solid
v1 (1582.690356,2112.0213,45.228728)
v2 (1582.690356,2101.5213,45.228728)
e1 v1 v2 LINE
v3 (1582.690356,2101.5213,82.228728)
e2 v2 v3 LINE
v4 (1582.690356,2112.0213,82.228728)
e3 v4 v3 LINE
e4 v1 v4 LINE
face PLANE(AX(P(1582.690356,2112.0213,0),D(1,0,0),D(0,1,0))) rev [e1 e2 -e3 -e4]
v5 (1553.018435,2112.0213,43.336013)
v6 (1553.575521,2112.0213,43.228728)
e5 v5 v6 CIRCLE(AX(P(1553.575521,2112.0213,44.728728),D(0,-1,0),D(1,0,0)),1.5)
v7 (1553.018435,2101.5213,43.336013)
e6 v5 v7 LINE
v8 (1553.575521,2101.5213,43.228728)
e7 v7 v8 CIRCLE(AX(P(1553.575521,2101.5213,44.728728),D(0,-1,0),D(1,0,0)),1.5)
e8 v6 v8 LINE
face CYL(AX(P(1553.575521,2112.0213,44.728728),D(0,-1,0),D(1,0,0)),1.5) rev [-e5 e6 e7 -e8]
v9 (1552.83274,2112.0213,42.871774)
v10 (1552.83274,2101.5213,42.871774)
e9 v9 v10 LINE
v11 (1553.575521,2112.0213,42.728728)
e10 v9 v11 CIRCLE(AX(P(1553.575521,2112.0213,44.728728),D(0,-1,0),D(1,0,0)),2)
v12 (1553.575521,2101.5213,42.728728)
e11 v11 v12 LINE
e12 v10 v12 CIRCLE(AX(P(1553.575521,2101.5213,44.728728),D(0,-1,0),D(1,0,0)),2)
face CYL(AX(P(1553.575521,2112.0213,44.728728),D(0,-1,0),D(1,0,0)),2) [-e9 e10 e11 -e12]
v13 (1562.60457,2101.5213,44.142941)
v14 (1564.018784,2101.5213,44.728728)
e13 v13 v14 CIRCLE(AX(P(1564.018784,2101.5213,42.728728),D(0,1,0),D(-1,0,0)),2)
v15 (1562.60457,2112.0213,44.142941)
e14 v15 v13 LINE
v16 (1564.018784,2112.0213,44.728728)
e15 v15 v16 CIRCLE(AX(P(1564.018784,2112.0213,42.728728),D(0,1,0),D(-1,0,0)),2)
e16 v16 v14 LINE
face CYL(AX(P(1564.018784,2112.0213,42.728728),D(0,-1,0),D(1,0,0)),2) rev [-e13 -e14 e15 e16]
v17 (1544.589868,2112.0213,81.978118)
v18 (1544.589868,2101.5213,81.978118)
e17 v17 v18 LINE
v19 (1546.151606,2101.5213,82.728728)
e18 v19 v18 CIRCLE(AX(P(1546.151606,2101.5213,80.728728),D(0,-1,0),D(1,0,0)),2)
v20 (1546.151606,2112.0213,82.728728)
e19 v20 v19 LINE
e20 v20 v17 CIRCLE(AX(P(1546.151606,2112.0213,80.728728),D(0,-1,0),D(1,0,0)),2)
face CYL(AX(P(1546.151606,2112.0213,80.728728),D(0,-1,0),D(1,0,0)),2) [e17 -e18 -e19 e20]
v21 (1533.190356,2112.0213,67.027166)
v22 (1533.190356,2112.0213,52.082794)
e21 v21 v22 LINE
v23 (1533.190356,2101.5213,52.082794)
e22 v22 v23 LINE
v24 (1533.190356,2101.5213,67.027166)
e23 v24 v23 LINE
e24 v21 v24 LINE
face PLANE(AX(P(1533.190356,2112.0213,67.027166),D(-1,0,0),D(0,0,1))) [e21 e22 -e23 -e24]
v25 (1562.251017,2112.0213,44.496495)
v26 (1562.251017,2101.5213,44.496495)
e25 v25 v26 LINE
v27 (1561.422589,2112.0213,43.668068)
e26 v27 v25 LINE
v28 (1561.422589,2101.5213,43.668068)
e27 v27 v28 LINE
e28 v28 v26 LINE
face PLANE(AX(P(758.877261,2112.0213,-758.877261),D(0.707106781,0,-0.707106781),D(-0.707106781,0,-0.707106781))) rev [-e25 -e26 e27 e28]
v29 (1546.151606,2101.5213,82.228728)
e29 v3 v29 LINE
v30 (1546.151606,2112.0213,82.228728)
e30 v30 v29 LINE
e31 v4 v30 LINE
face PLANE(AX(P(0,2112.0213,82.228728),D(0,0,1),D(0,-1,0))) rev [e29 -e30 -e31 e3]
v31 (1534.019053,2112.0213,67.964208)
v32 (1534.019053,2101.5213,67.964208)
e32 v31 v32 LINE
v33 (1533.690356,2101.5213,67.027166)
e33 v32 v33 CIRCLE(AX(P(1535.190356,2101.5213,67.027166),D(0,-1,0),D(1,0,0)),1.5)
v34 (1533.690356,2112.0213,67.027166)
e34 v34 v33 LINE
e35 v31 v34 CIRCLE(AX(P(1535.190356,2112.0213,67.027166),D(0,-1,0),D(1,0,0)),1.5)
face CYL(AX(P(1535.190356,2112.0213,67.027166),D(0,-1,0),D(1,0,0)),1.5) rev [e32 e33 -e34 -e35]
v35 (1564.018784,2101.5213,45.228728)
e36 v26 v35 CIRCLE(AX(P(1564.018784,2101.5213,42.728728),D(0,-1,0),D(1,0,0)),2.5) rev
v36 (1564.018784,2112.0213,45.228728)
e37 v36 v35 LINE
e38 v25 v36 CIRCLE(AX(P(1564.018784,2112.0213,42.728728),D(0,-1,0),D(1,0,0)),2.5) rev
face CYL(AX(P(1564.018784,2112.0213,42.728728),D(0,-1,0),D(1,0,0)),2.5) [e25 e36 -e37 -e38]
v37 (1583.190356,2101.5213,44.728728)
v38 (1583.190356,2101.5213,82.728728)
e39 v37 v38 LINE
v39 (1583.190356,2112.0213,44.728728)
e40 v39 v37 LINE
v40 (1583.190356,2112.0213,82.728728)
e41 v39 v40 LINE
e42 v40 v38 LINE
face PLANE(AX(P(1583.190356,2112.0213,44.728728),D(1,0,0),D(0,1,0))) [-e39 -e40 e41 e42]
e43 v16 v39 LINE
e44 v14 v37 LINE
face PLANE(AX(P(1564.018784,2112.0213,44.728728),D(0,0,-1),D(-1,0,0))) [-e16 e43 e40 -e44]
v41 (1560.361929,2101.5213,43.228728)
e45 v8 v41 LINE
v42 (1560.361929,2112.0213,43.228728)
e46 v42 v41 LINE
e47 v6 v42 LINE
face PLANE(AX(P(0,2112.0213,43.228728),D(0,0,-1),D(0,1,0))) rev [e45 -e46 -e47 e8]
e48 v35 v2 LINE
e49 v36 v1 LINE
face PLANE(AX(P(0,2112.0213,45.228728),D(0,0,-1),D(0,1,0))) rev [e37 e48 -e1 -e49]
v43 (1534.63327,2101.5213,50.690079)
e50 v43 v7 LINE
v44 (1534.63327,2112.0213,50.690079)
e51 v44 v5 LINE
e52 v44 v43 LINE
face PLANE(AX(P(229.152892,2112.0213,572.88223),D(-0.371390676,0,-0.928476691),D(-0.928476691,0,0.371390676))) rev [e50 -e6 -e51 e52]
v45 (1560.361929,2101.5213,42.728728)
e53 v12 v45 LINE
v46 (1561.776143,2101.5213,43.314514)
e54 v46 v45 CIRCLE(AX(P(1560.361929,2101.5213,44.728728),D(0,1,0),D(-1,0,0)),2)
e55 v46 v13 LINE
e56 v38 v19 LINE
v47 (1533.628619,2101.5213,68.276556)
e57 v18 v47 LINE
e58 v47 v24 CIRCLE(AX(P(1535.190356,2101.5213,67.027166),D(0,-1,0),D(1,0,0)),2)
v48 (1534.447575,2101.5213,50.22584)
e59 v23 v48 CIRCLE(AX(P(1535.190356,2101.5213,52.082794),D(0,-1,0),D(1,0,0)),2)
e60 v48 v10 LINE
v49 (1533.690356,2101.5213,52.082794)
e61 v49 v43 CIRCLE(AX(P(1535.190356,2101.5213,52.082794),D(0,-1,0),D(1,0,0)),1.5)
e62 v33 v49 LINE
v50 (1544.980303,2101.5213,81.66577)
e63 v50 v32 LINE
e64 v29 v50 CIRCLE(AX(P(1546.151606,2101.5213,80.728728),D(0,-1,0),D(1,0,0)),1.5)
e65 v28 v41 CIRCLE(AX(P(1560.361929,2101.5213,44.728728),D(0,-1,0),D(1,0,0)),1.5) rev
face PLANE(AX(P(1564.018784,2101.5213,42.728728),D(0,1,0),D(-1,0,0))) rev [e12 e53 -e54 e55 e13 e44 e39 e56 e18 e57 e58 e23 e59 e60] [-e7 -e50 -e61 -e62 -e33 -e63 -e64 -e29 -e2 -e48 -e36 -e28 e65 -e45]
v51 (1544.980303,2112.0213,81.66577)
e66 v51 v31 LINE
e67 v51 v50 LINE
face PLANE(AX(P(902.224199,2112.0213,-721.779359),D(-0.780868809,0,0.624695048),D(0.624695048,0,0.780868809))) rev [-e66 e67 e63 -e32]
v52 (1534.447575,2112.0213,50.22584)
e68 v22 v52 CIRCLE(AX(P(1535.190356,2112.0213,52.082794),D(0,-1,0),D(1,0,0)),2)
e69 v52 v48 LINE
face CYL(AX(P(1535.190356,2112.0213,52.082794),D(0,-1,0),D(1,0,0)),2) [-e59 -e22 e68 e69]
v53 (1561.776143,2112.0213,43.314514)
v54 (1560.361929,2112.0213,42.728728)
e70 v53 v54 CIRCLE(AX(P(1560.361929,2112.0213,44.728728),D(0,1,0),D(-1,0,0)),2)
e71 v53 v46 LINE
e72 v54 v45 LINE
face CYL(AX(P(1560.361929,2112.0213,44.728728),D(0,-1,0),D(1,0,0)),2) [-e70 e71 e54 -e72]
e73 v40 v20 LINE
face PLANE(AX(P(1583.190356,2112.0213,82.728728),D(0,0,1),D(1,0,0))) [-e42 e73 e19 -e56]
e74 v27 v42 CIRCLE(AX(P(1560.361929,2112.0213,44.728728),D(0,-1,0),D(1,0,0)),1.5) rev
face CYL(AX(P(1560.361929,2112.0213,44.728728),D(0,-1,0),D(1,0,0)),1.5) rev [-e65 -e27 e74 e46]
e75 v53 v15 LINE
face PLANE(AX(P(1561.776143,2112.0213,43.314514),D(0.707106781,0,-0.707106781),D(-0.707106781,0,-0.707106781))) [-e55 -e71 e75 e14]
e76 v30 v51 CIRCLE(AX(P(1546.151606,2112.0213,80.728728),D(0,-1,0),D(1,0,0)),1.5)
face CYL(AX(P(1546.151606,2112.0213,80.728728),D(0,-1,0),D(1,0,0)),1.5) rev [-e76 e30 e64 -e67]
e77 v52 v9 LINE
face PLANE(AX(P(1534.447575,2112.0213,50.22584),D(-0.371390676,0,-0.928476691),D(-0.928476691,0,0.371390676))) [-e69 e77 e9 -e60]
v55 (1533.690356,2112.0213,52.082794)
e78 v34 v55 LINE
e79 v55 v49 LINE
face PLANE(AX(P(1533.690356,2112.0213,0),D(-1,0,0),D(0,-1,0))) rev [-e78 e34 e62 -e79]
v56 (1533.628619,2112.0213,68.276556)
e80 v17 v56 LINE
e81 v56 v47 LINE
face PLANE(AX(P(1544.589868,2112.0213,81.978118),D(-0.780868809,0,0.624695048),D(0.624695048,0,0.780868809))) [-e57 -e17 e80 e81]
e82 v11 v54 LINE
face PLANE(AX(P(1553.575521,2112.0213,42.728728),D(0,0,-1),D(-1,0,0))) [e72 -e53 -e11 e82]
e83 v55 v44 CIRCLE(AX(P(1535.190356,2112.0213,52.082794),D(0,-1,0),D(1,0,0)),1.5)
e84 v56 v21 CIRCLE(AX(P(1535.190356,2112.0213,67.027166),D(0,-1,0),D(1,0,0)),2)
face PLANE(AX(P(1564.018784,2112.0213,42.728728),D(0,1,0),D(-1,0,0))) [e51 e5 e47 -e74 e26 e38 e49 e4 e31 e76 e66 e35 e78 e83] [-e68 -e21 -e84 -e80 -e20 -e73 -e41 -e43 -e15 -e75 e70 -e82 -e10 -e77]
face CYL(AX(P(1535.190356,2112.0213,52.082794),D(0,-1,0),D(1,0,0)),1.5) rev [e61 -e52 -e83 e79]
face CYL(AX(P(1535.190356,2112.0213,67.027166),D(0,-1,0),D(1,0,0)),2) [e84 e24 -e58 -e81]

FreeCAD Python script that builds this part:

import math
import FreeCAD as App
import Part
import Sketcher
Q = App.Units.Quantity

doc = App.newDocument("Part")
body = doc.addObject("PartDesign::Body", "Body")

# Sketch on XZ plane
sketch1 = body.newObject("Sketcher::SketchObject", "Sketch")
sketch1.AttachmentSupport = (doc.getObject("XZ_Plane"), [""])
sketch1.MapMode = "FlatFace"
sketch1.AttachmentOffset = App.Placement(App.Vector(0, 0, -2101.5213), App.Rotation())
sketch1.addGeometry([
    Part.LineSegment(App.Vector(1583.2, 82.7, 0), App.Vector(1546.2, 82.7, 0)),  # 0
    Part.ArcOfCircle(Part.Circle(App.Vector(1546.2, 80.7, 0), App.Vector(0, 0, 1), 2), math.radians(90), math.radians(141)),  # 1
    Part.LineSegment(App.Vector(1544.6, 82, 0), App.Vector(1533.6, 68.3, 0)),  # 2
    Part.ArcOfCircle(Part.Circle(App.Vector(1535.2, 67, 0), App.Vector(0, 0, 1), 2), math.radians(141), math.radians(180)),  # 3
    Part.LineSegment(App.Vector(1533.2, 67, 0), App.Vector(1533.2, 52.1, 0)),  # 4
    Part.ArcOfCircle(Part.Circle(App.Vector(1535.2, 52.1, 0), App.Vector(0, 0, 1), 2), math.radians(180), math.radians(248)),  # 5
    Part.LineSegment(App.Vector(1534.4, 50.2, 0), App.Vector(1552.8, 42.9, 0)),  # 6
    Part.ArcOfCircle(Part.Circle(App.Vector(1553.6, 44.7, 0), App.Vector(0, 0, 1), 2), math.radians(-112), math.radians(-90)),  # 7
    Part.LineSegment(App.Vector(1553.6, 42.7, 0), App.Vector(1560.4, 42.7, 0)),  # 8
    Part.ArcOfCircle(Part.Circle(App.Vector(1560.4, 44.7, 0), App.Vector(0, 0, 1), 2), math.radians(-90), math.radians(-45)),  # 9
    Part.LineSegment(App.Vector(1561.8, 43.3, 0), App.Vector(1562.6, 44.1, 0)),  # 10
    Part.ArcOfCircle(Part.Circle(App.Vector(1564, 42.7, 0), App.Vector(0, 0, 1), 2), math.radians(90), math.radians(135)),  # 11
    Part.LineSegment(App.Vector(1564, 44.7, 0), App.Vector(1583.2, 44.7, 0)),  # 12
    Part.LineSegment(App.Vector(1583.2, 44.7, 0), App.Vector(1583.2, 82.7, 0)),  # 13
    Part.LineSegment(App.Vector(1582.7, 45.2, 0), App.Vector(1564, 45.2, 0)),  # 14
    Part.ArcOfCircle(Part.Circle(App.Vector(1564, 42.7, 0), App.Vector(0, 0, 1), 2.5), math.radians(90), math.radians(135)),  # 15
    Part.LineSegment(App.Vector(1562.3, 44.5, 0), App.Vector(1561.4, 43.7, 0)),  # 16
    Part.ArcOfCircle(Part.Circle(App.Vector(1560.4, 44.7, 0), App.Vector(0, 0, 1), 1.5), math.radians(-90), math.radians(-45)),  # 17
    Part.LineSegment(App.Vector(1560.4, 43.2, 0), App.Vector(1553.6, 43.2, 0)),  # 18
    Part.ArcOfCircle(Part.Circle(App.Vector(1553.6, 44.7, 0), App.Vector(0, 0, 1), 1.5), math.radians(-112), math.radians(-90)),  # 19
    Part.LineSegment(App.Vector(1553, 43.3, 0), App.Vector(1534.6, 50.7, 0)),  # 20
    Part.ArcOfCircle(Part.Circle(App.Vector(1535.2, 52.1, 0), App.Vector(0, 0, 1), 1.5), math.radians(180), math.radians(248)),  # 21
    Part.LineSegment(App.Vector(1533.7, 52.1, 0), App.Vector(1533.7, 67, 0)),  # 22
    Part.ArcOfCircle(Part.Circle(App.Vector(1535.2, 67, 0), App.Vector(0, 0, 1), 1.5), math.radians(141), math.radians(180)),  # 23
    Part.LineSegment(App.Vector(1534, 68, 0), App.Vector(1545, 81.7, 0)),  # 24
    Part.ArcOfCircle(Part.Circle(App.Vector(1546.2, 80.7, 0), App.Vector(0, 0, 1), 1.5), math.radians(90), math.radians(141)),  # 25
    Part.LineSegment(App.Vector(1546.2, 82.2, 0), App.Vector(1582.7, 82.2, 0)),  # 26
    Part.LineSegment(App.Vector(1582.7, 82.2, 0), App.Vector(1582.7, 45.2, 0)),  # 27
], False)
sketch1.addConstraint([
    Sketcher.Constraint("Tangent", 0, 2, 1, 1),
    Sketcher.Constraint("Tangent", 1, 2, 2, 1),
    Sketcher.Constraint("Tangent", 2, 2, 3, 1),
    Sketcher.Constraint("Tangent", 3, 2, 4, 1),
    Sketcher.Constraint("Tangent", 4, 2, 5, 1),
    Sketcher.Constraint("Tangent", 5, 2, 6, 1),
    Sketcher.Constraint("Tangent", 6, 2, 7, 1),
    Sketcher.Constraint("Tangent", 7, 2, 8, 1),
    Sketcher.Constraint("Tangent", 8, 2, 9, 1),
    Sketcher.Constraint("Tangent", 9, 2, 10, 1),
    Sketcher.Constraint("Tangent", 10, 2, 11, 2),
    Sketcher.Constraint("Tangent", 11, 1, 12, 1),
    Sketcher.Constraint("Coincident", 12, 2, 13, 1),
    Sketcher.Constraint("Coincident", 13, 2, 0, 1),
    Sketcher.Constraint("Tangent", 14, 2, 15, 1),
    Sketcher.Constraint("Tangent", 15, 2, 16, 1),
    Sketcher.Constraint("Tangent", 16, 2, 17, 2),
    Sketcher.Constraint("Tangent", 17, 1, 18, 1),
    Sketcher.Constraint("Tangent", 18, 2, 19, 2),
    Sketcher.Constraint("Tangent", 19, 1, 20, 1),
    Sketcher.Constraint("Tangent", 20, 2, 21, 2),
    Sketcher.Constraint("Tangent", 21, 1, 22, 1),
    Sketcher.Constraint("Tangent", 22, 2, 23, 2),
    Sketcher.Constraint("Tangent", 23, 1, 24, 1),
    Sketcher.Constraint("Tangent", 24, 2, 25, 2),
    Sketcher.Constraint("Tangent", 25, 1, 26, 1),
    Sketcher.Constraint("Coincident", 26, 2, 27, 1),
    Sketcher.Constraint("Coincident", 27, 2, 14, 1),
    Sketcher.Constraint("Horizontal", 0),
    Sketcher.Constraint("Vertical", 4),
    Sketcher.Constraint("Horizontal", 8),
    Sketcher.Constraint("Horizontal", 12),
    Sketcher.Constraint("Vertical", 13),
    Sketcher.Constraint("Horizontal", 14),
    Sketcher.Constraint("Horizontal", 18),
    Sketcher.Constraint("Vertical", 22),
    Sketcher.Constraint("Horizontal", 26),
    Sketcher.Constraint("Vertical", 27),
    Sketcher.Constraint("Coincident", 15, 3, 11, 3),
    Sketcher.Constraint("Coincident", 17, 3, 9, 3),
    Sketcher.Constraint("Coincident", 19, 3, 7, 3),
    Sketcher.Constraint("Coincident", 21, 3, 5, 3),
    Sketcher.Constraint("Coincident", 23, 3, 3, 3),
    Sketcher.Constraint("Coincident", 25, 3, 1, 3),
    Sketcher.Constraint("Equal", 1, 3),
    Sketcher.Constraint("Equal", 3, 5),
    Sketcher.Constraint("Equal", 5, 7),
    Sketcher.Constraint("Equal", 7, 9),
    Sketcher.Constraint("Equal", 9, 11),
    Sketcher.Constraint("Equal", 19, 21),
    Sketcher.Constraint("Equal", 23, 25),
    Sketcher.Constraint("Parallel", 10, 16),
    Sketcher.Constraint("Horizontal", 15, 3, 7, 2),
    Sketcher.Constraint("Radius", 1, 2.0),
    Sketcher.Constraint("Radius", 15, 2.5),
    Sketcher.Constraint("DistanceY", 13, 1, 13, 2, 38.0),
    Sketcher.Constraint("Angle", 10, Q("45 deg")),
    Sketcher.Constraint("DistanceX", 26, 2, 13, 2, 0.5),
    Sketcher.Constraint("DistanceX", 0, 2, 0, 1, 37.03875),
    Sketcher.Constraint("DistanceX", 8, 1, 8, 2, 6.786408),
    Sketcher.Constraint("DistanceY", 4, 2, 4, 1, 14.944372),
    Sketcher.Constraint("Distance", 2, 17.546561),
    Sketcher.Constraint("Distance", 6, 19.801428),
    Sketcher.Constraint("DistanceX", 12, 1, 12, 2, 19.171573),
    Sketcher.Constraint("DistanceX", -1, 1, 7, 3, 1553.575521),
    Sketcher.Constraint("DistanceY", -1, 1, 5, 2, 50.22584),
])
pad1 = body.newObject("PartDesign::Pad", "Pad")
pad1.Profile = sketch1
pad1.Length = 10.5
pad1.Reversed = True

doc.recompute()
